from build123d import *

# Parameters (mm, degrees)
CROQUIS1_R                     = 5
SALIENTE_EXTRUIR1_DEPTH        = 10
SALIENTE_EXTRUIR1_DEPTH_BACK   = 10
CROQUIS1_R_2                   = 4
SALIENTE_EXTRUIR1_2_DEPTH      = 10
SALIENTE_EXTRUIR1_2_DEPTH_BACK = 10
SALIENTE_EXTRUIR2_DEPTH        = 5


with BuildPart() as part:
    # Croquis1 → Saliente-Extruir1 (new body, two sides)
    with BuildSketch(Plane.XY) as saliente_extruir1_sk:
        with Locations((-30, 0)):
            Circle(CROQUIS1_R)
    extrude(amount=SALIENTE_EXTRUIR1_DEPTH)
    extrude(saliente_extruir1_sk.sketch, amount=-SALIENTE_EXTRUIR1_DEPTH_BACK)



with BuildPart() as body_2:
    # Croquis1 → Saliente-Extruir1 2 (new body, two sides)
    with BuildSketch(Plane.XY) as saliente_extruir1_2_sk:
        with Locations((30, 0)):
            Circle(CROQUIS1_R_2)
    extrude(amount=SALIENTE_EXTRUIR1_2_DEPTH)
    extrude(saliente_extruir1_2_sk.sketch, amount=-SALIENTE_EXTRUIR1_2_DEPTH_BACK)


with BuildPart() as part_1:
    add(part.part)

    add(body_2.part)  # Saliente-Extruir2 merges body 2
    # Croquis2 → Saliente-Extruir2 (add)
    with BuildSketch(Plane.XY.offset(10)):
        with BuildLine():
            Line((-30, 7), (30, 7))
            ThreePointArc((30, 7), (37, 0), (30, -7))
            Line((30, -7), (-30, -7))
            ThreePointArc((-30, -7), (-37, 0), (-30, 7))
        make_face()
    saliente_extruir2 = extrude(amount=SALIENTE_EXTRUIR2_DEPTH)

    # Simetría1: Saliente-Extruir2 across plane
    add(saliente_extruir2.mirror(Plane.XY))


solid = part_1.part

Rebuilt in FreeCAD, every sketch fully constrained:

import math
import FreeCAD as App
import Part
import Sketcher

V = App.Vector

doc = App.newDocument("Part")
body = doc.addObject("PartDesign::Body", "Body")

# Sketch on XY plane
sketch1 = doc.addObject("Sketcher::SketchObject", "Sketch")
body.addObject(sketch1)
sketch1.AttachmentSupport = (doc.XY_Plane, [""])
sketch1.MapMode = "FlatFace"
sketch1.addGeometry(Part.Circle(V(-30, 0, 0), V(0, 0, 1), 5), False)
sketch1.addConstraint(Sketcher.Constraint("PointOnObject", 0, 3, -1))
sketch1.addConstraint(Sketcher.Constraint("Diameter", 0, 10.0))
sketch1.addConstraint(Sketcher.Constraint("DistanceX", 0, 3, -1, 1, 30.0))
pad1 = doc.addObject("PartDesign::Pad", "Pad")
body.addObject(pad1)
pad1.Profile = sketch1
pad1.Type = "TwoLengths"
pad1.Length = 10
pad1.Length2 = 10
body2 = doc.addObject("PartDesign::Body", "Body001")

# Sketch on XY plane
sketch2 = doc.addObject("Sketcher::SketchObject", "Sketch001")
body2.addObject(sketch2)
sketch2.AttachmentSupport = (doc.getObject("XY_Plane001"), [""])
sketch2.MapMode = "FlatFace"
sketch2.addGeometry(Part.Circle(V(30, 0, 0), V(0, 0, 1), 4), False)
sketch2.addConstraint(Sketcher.Constraint("PointOnObject", 0, 3, -1))
sketch2.addConstraint(Sketcher.Constraint("Diameter", 0, 8.0))
sketch2.addConstraint(Sketcher.Constraint("DistanceX", -1, 1, 0, 3, 30.0))
pad2 = doc.addObject("PartDesign::Pad", "Pad001")
body2.addObject(pad2)
pad2.Profile = sketch2
pad2.Type = "TwoLengths"
pad2.Length = 10
pad2.Length2 = 10
body.AllowCompound = True
doc.recompute()

boolean = doc.addObject("PartDesign::Boolean", "Boolean")
body.addObject(boolean)
boolean.Type = "Fuse"
boolean.addObjects([body2])

# Sketch on XY plane
sketch3 = doc.addObject("Sketcher::SketchObject", "Sketch002")
body.addObject(sketch3)
sketch3.AttachmentSupport = (doc.XY_Plane, [""])
sketch3.MapMode = "FlatFace"
sketch3.AttachmentOffset = App.Placement(V(0, 0, 10), App.Rotation())
sketch3.addGeometry(Part.LineSegment(V(30, 7, 0), V(-30, 7, 0)), False)
sketch3.addGeometry(Part.ArcOfCircle(Part.Circle(V(-30, 0, 0), V(0, 0, 1), 7), math.radians(90), math.radians(270)), False)
sketch3.addGeometry(Part.LineSegment(V(-30, -7, 0), V(30, -7, 0)), False)
sketch3.addGeometry(Part.ArcOfCircle(Part.Circle(V(30, 0, 0), V(0, 0, 1), 7), math.radians(-90), math.radians(90)), False)
sketch3.addConstraint(Sketcher.Constraint("Tangent", 0, 2, 1, 1))
sketch3.addConstraint(Sketcher.Constraint("Tangent", 1, 2, 2, 1))
sketch3.addConstraint(Sketcher.Constraint("Tangent", 2, 2, 3, 1))
sketch3.addConstraint(Sketcher.Constraint("Tangent", 3, 2, 0, 1))
sketch3.addConstraint(Sketcher.Constraint("Horizontal", 0))
sketch3.addConstraint(Sketcher.Constraint("Horizontal", 2))
sketch3.addConstraint(Sketcher.Constraint("Symmetric", 1, 3, 3, 3, -1, 1))
sketch3.addConstraint(Sketcher.Constraint("Radius", 1, 7.0))
sketch3.addConstraint(Sketcher.Constraint("DistanceX", 0, 2, 0, 1, 60.0))
pad3 = doc.addObject("PartDesign::Pad", "Pad002")
body.addObject(pad3)
pad3.Profile = sketch3
pad3.Length = 5
doc.recompute()

mirrored = doc.addObject("PartDesign::Mirrored", "Mirrored")
body.addObject(mirrored)
mirrored.Originals = [pad3]
mirrored.MirrorPlane = (doc.XY_Plane, [""])
body.Tip = mirrored

doc.recompute()
